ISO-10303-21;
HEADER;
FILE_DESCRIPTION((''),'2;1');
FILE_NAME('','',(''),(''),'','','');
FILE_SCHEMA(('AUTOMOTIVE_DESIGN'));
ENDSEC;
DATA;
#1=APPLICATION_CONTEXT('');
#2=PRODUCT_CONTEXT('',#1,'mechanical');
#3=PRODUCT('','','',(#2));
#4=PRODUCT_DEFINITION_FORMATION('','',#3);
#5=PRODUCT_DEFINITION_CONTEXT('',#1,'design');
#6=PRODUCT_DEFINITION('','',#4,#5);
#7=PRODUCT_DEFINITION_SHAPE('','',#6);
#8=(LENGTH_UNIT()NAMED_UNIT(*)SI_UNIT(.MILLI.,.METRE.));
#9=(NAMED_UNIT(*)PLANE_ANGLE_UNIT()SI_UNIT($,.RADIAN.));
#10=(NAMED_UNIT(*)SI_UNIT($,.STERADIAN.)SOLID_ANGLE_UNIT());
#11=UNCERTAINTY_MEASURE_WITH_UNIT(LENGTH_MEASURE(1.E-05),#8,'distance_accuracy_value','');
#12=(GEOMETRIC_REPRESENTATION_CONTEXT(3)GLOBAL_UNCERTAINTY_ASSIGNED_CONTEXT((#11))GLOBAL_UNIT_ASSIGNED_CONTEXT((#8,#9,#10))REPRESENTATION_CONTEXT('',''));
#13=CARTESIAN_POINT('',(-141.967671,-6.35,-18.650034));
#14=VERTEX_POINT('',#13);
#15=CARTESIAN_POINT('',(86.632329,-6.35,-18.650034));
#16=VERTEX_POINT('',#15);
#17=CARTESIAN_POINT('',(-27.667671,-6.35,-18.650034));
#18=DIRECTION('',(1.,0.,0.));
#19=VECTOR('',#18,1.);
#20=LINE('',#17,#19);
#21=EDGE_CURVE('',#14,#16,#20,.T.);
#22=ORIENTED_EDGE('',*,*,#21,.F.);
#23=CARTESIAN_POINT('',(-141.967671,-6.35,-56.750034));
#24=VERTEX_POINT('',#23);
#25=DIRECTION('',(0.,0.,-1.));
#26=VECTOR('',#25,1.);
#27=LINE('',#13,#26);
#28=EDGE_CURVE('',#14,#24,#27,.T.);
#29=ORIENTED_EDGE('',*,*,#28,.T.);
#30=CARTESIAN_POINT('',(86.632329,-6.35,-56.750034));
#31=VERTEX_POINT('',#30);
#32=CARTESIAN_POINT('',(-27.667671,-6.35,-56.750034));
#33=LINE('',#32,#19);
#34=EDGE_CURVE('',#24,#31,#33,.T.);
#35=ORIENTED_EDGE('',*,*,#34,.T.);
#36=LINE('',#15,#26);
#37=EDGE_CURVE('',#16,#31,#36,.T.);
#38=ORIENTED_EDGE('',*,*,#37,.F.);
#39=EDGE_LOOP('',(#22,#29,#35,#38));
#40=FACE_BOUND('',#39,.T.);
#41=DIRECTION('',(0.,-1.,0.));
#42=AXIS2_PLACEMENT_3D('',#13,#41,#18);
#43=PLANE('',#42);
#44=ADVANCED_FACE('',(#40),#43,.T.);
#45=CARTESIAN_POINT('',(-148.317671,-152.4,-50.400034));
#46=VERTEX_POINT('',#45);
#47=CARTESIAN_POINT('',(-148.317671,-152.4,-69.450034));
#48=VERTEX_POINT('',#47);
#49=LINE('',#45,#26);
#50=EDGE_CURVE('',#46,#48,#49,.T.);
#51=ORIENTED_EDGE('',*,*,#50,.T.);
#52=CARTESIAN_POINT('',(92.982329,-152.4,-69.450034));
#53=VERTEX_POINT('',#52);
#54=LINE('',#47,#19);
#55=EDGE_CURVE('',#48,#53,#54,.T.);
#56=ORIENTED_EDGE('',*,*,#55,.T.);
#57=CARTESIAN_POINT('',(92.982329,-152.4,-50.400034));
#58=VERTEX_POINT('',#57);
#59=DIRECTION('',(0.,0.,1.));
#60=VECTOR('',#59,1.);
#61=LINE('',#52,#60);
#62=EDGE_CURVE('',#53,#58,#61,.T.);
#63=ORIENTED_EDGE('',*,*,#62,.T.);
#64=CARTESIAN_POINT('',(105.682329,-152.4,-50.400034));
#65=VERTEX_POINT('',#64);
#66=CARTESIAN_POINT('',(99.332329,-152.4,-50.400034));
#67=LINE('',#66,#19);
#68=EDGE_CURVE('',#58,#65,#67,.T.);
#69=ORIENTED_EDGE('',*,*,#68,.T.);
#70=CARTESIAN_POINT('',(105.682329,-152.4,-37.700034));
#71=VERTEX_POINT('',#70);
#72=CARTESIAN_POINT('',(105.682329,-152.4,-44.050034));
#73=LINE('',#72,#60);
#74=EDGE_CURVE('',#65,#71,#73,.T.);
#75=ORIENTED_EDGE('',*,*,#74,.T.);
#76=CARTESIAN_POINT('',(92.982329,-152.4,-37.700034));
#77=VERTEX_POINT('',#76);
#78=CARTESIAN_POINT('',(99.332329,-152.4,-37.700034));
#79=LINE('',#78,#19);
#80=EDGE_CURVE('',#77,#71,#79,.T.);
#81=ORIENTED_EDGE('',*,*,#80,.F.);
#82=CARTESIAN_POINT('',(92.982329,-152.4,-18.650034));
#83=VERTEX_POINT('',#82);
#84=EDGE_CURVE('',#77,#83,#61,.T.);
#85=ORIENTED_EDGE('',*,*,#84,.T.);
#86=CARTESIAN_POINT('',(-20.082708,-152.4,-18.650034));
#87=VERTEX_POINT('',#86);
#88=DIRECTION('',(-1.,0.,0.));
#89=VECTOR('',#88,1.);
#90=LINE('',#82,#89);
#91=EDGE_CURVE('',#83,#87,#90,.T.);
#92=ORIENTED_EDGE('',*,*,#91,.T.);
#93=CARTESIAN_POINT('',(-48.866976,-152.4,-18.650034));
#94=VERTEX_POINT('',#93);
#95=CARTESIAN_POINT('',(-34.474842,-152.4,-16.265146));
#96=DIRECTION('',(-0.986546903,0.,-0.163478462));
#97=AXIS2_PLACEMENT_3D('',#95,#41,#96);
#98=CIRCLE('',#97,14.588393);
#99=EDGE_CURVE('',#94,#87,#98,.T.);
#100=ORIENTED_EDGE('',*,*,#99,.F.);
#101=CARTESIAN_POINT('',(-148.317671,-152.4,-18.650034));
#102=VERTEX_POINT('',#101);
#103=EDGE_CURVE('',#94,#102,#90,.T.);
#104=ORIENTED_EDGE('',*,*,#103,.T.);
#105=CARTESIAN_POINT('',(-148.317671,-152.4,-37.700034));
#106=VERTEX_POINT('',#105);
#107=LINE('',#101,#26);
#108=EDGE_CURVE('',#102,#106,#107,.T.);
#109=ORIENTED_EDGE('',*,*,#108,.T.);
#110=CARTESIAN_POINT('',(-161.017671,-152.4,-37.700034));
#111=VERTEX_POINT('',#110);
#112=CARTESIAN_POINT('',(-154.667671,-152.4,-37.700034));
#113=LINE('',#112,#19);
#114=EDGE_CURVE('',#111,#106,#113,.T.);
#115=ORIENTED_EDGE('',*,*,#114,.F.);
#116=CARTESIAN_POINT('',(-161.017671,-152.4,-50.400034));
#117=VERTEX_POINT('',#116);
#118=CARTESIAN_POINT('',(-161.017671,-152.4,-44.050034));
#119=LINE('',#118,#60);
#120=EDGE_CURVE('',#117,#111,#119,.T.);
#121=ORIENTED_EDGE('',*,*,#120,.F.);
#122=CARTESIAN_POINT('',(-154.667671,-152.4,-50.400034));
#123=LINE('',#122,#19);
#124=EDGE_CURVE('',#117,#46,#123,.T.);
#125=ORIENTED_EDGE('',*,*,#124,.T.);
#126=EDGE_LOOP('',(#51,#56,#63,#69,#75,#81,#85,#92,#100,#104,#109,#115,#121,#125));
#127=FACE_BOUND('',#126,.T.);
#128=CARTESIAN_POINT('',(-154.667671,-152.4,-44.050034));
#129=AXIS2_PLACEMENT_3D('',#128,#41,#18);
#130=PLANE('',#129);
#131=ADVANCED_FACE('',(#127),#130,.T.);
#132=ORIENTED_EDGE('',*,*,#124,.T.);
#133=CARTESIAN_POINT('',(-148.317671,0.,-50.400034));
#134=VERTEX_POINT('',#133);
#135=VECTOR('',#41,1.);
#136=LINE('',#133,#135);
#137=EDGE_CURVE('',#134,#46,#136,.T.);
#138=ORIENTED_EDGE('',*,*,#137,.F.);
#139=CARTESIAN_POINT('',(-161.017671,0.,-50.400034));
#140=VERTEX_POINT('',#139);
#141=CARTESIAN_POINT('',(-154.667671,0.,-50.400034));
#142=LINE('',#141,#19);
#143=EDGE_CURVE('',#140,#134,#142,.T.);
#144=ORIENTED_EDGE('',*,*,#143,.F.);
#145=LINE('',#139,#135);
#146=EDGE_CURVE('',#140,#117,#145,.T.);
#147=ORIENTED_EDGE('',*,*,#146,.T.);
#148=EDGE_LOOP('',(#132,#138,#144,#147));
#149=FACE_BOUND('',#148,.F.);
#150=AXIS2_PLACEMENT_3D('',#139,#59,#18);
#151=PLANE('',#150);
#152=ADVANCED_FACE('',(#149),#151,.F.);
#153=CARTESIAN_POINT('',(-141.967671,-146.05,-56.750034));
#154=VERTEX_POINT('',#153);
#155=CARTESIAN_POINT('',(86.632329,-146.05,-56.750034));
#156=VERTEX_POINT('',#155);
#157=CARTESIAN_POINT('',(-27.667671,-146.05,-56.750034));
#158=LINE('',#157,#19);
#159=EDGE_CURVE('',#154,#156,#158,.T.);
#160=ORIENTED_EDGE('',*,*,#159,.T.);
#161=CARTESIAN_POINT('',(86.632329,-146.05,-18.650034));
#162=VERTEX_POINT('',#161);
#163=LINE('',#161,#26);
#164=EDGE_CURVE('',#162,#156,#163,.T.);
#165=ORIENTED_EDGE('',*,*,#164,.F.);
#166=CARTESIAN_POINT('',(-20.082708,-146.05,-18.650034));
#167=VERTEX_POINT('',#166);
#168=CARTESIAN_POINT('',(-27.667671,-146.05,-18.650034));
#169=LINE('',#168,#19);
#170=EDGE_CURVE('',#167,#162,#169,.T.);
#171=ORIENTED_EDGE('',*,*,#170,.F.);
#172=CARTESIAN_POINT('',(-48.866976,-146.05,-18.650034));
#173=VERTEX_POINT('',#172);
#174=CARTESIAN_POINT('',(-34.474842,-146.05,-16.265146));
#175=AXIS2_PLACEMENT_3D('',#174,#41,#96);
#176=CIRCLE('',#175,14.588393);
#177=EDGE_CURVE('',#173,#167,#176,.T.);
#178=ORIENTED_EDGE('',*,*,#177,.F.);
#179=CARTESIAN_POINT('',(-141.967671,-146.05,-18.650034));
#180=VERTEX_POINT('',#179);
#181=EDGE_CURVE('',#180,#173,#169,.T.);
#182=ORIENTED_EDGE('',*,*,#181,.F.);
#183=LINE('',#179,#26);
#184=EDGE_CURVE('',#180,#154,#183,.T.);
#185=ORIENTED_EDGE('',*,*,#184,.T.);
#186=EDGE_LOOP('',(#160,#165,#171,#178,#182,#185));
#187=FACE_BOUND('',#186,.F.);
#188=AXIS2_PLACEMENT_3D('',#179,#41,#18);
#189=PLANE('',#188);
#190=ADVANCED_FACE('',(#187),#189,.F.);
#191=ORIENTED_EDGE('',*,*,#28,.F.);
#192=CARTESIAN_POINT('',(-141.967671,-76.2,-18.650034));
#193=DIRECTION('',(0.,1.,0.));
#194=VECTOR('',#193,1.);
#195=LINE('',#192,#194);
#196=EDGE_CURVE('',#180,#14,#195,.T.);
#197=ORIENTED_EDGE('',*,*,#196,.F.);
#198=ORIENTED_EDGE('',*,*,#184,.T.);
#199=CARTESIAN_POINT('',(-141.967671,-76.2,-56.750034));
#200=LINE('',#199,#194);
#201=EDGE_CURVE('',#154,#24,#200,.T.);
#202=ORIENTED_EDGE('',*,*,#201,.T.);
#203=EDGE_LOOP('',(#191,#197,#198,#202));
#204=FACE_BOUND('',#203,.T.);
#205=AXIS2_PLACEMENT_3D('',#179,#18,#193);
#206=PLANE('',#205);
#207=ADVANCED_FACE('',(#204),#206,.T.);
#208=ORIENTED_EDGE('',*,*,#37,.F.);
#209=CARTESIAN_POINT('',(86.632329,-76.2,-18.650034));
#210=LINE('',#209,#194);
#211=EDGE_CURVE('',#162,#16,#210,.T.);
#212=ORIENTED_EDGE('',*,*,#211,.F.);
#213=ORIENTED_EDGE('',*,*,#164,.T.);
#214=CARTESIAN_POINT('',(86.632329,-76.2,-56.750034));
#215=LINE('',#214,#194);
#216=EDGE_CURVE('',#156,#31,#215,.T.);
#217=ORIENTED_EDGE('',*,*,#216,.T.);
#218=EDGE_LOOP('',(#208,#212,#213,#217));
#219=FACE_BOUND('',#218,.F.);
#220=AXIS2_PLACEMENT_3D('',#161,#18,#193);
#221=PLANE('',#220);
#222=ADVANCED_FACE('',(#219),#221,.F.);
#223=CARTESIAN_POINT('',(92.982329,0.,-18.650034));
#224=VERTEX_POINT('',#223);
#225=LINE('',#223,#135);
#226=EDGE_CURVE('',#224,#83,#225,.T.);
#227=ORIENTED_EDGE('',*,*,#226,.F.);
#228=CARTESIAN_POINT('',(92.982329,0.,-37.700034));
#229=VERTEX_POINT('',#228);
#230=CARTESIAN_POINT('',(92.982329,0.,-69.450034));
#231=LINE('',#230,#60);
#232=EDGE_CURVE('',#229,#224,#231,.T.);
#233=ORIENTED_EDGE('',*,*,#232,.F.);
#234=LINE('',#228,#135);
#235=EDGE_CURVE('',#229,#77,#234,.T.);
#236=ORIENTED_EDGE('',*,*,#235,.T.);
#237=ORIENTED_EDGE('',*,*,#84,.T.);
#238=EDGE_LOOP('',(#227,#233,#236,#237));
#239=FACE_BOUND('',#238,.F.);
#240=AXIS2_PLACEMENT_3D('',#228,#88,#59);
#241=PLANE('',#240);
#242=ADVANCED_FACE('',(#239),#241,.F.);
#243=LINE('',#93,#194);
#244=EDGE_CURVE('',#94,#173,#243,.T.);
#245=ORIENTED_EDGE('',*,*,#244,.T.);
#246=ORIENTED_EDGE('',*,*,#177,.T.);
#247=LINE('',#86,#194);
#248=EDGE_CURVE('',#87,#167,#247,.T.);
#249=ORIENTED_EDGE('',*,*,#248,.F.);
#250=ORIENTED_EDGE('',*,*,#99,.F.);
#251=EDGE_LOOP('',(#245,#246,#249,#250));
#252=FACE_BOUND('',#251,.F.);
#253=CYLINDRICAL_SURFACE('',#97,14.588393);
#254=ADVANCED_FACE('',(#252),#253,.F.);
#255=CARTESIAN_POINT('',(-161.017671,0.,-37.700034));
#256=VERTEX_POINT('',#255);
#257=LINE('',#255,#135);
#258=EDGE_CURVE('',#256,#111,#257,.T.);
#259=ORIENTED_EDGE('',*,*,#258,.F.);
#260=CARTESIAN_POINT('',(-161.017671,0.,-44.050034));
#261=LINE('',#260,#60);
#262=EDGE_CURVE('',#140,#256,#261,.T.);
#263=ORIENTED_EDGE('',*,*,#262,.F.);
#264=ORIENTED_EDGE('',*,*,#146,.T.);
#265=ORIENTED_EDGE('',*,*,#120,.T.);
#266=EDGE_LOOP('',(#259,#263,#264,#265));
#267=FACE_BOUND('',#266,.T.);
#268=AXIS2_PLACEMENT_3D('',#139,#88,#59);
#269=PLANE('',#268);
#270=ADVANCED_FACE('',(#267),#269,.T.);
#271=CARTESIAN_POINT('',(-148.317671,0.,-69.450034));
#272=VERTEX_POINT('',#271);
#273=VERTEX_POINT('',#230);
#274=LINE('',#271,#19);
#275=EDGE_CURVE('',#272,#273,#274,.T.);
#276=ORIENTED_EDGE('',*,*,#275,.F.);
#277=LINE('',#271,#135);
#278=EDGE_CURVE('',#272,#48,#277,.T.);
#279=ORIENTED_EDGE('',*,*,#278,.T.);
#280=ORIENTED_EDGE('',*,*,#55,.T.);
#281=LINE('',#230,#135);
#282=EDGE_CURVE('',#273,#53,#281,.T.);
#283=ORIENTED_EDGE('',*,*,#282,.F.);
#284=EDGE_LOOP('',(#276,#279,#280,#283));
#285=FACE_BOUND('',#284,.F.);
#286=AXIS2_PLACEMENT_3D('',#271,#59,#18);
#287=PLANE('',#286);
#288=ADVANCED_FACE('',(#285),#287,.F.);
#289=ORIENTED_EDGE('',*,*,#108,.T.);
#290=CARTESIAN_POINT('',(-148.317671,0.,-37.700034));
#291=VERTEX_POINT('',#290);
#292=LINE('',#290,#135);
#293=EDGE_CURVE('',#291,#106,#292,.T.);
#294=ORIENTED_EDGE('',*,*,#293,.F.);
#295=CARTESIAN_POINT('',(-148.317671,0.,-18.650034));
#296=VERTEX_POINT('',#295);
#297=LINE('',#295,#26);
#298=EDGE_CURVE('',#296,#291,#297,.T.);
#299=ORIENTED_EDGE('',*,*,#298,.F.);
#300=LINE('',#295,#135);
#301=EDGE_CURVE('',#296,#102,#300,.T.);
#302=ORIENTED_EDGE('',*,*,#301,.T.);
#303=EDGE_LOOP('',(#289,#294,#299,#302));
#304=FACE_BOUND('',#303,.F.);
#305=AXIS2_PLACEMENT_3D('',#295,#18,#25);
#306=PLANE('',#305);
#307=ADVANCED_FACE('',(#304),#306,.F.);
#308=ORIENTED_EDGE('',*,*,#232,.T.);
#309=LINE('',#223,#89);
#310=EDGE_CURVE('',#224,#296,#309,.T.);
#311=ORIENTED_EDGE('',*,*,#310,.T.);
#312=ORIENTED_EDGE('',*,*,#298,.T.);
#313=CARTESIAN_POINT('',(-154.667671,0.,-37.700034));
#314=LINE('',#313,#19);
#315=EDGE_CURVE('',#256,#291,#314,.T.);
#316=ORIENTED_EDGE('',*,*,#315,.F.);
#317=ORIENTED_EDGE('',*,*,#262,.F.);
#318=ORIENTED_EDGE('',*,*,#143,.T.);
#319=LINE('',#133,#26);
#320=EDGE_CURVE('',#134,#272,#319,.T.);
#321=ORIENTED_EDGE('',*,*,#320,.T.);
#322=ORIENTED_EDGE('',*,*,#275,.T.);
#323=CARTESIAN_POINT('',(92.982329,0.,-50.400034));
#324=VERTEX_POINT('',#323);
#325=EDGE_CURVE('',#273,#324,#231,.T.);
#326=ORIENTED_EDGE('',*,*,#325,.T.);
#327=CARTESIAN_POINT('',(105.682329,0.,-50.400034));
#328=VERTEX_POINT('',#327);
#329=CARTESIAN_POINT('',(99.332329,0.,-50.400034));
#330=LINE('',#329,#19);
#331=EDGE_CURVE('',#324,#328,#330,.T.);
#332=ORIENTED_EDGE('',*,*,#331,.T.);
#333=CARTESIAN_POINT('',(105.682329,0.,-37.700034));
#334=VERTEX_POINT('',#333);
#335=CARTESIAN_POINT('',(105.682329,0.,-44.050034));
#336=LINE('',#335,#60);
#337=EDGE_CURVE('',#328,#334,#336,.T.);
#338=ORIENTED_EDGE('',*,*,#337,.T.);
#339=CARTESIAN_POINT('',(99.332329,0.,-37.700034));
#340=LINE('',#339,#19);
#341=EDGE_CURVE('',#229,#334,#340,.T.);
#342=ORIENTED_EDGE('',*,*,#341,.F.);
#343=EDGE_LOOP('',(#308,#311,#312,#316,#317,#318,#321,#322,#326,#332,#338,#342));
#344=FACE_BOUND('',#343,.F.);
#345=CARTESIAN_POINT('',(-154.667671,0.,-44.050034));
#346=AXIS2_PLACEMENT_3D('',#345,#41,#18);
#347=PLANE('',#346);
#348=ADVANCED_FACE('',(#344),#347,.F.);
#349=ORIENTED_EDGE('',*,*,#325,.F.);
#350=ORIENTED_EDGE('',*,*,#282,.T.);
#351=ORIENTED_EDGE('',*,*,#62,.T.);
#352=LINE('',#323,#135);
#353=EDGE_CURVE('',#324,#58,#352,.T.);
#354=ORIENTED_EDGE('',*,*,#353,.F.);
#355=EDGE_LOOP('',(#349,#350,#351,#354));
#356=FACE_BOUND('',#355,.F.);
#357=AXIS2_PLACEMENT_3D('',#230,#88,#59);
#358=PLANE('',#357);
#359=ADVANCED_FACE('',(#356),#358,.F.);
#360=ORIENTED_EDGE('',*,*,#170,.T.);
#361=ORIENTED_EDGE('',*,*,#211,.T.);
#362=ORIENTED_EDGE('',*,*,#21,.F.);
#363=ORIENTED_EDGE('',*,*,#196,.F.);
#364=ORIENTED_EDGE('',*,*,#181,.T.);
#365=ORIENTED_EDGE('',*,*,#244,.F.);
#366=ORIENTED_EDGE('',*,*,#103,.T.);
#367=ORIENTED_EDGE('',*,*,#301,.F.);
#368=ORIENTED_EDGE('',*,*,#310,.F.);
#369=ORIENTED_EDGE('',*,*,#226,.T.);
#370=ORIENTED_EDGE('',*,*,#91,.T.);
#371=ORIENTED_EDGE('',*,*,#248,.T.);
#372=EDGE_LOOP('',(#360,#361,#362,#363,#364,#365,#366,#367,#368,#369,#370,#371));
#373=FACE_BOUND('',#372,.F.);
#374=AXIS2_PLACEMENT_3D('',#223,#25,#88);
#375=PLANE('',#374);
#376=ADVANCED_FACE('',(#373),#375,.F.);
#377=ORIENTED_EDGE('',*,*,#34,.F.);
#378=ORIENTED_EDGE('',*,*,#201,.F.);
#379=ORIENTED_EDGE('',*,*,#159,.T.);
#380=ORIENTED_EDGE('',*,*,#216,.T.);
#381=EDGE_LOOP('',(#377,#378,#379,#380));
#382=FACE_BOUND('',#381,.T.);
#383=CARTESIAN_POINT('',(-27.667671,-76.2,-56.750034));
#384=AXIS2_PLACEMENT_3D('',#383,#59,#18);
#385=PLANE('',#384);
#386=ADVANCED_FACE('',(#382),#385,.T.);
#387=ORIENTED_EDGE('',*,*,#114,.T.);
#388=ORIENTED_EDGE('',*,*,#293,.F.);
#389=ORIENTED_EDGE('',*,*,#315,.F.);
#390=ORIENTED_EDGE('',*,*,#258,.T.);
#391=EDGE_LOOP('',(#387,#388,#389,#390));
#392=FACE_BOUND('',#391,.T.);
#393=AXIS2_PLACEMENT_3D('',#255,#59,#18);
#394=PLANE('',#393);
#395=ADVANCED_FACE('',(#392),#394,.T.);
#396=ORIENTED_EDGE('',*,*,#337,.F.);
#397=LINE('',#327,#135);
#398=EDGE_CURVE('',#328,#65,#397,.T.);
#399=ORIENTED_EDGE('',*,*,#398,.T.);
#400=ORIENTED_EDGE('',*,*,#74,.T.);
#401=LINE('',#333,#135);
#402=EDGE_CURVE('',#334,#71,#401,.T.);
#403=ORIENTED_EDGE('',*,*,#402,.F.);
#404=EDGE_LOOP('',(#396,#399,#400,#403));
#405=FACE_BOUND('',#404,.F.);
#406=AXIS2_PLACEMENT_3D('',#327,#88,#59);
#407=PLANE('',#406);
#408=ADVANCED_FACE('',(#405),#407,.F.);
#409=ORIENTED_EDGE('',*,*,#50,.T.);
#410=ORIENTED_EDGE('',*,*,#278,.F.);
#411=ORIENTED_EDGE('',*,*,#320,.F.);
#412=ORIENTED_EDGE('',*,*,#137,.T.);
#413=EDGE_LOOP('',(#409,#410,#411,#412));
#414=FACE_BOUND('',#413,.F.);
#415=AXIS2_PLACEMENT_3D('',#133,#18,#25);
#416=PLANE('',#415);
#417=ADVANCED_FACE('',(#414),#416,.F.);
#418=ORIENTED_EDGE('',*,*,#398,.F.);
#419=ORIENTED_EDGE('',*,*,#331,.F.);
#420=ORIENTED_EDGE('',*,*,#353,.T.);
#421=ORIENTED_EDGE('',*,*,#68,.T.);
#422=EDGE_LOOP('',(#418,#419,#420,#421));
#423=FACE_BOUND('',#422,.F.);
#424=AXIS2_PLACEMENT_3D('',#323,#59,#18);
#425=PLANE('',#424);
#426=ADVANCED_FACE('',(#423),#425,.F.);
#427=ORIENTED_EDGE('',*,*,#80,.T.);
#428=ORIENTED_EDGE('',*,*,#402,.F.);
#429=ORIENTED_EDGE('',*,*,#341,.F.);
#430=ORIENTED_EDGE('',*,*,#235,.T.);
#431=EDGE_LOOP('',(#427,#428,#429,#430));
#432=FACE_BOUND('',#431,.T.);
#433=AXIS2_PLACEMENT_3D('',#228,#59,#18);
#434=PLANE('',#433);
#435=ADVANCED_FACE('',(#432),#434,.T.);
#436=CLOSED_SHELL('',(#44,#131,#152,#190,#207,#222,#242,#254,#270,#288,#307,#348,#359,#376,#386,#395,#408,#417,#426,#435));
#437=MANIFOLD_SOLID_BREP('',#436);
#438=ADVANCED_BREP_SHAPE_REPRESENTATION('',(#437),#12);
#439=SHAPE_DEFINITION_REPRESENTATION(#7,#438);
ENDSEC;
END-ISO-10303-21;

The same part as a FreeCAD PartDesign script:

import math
import FreeCAD as App
import Part
import Sketcher
from FreeCAD import Vector
Q = App.Units.Quantity


def add_polygon(sketch, points):
    """Adds a closed chain of lines whose ends are joined by coincident constraints."""
    first, n = sketch.GeometryCount, len(points)
    for a, b in zip(points, points[1:] + points[:1]):
        sketch.addGeometry(Part.LineSegment(App.Vector(*a, 0), App.Vector(*b, 0)), False)
    for i in range(n):
        sketch.addConstraint(Sketcher.Constraint("Coincident", first + i, 2, first + (i + 1) % n, 1))

doc = App.newDocument("Part")
body = doc.addObject("PartDesign::Body", "Body")

# Sketch on XZ plane
sketch1 = body.newObject("Sketcher::SketchObject", "Sketch")
sketch1.AttachmentSupport = (doc.getObject("XZ_Plane"), [""])
sketch1.MapMode = "FlatFace"
add_polygon(sketch1, [(-161.017671, -37.700034), (-161.017671, -50.400034), (-148.317671, -50.400034), (-148.317671, -69.450034), (92.982329, -69.450034), (92.982329, -50.400034), (105.682329, -50.400034), (105.682329, -37.700034), (92.982329, -37.700034), (92.982329, -18.650034), (-148.317671, -18.650034), (-148.317671, -37.700034)])  # lines 0-11
sketch1.addConstraint([
    Sketcher.Constraint("Vertical", 0),
    Sketcher.Constraint("Horizontal", 1),
    Sketcher.Constraint("Vertical", 2),
    Sketcher.Constraint("Horizontal", 3),
    Sketcher.Constraint("Vertical", 4),
    Sketcher.Constraint("Horizontal", 5),
    Sketcher.Constraint("Vertical", 6),
    Sketcher.Constraint("Horizontal", 7),
    Sketcher.Constraint("Vertical", 8),
    Sketcher.Constraint("Horizontal", 9),
    Sketcher.Constraint("Vertical", 10),
    Sketcher.Constraint("Horizontal", 11),
    Sketcher.Constraint("Horizontal", 1, 2, 4, 2),
    Sketcher.Constraint("Horizontal", 7, 2, 10, 2),
    Sketcher.Constraint("Vertical", 4, 2, 7, 2),
    Sketcher.Constraint("Vertical", 2, 2, 9, 2),
    Sketcher.Constraint("Equal", 1, 5),
    Sketcher.Constraint("Equal", 11, 0),
    Sketcher.Constraint("Equal", 4, 8),
    Sketcher.Constraint("DistanceX", 1, 1, 1, 2, Q("0.5 in")),
    Sketcher.Constraint("DistanceX", 3, 1, 3, 2, Q("9.5 in")),
    Sketcher.Constraint("DistanceY", 3, 2, 8, 2, Q("2 in")),
    Sketcher.Constraint("DistanceX", 0, 2, -1, 1, Q("161.017671 mm")),
    Sketcher.Constraint("DistanceY", 0, 2, -1, 1, Q("50.400034 mm")),
])
pad1 = body.newObject("PartDesign::Pad", "Pad")
pad1.Profile = sketch1
pad1.Length = Q("6 in")

# Sketch on XY plane
sketch2 = body.newObject("Sketcher::SketchObject", "Sketch001")
sketch2.AttachmentSupport = (doc.getObject("XY_Plane"), [""])
sketch2.MapMode = "FlatFace"
sketch2.AttachmentOffset = App.Placement(Vector(0, 0, -18.650034), App.Rotation())
add_polygon(sketch2, [(-141.967671, -6.35), (-141.967671, -146.05), (86.632329, -146.05), (86.632329, -6.35)])  # lines 0-3
sketch2.addConstraint([
    Sketcher.Constraint("Vertical", 0),
    Sketcher.Constraint("Horizontal", 1),
    Sketcher.Constraint("Vertical", 2),
    Sketcher.Constraint("Horizontal", 3),
    Sketcher.Constraint("DistanceX", 1, 1, 1, 2, Q("9 in")),
    Sketcher.Constraint("DistanceY", 0, 2, 0, 1, Q("5.5 in")),
    Sketcher.Constraint("DistanceY", 0, 2, -1, 1, Q("5.75 in")),
    Sketcher.Constraint("DistanceX", 0, 2, -1, 1, Q("141.967671 mm")),
])
pocket1 = body.newObject("PartDesign::Pocket", "Pocket")
pocket1.Profile = sketch2
pocket1.Length = Q("1.5 in")

# Sketch on XZ plane
sketch3 = body.newObject("Sketcher::SketchObject", "Sketch002")
sketch3.AttachmentSupport = (doc.getObject("XZ_Plane"), [""])
sketch3.MapMode = "FlatFace"
sketch3.AttachmentOffset = App.Placement(Vector(0, 0, 6 * 25.4), App.Rotation())
sketch3.addGeometry([
    Part.LineSegment(Vector(-20.082708, -18.650034, 0), Vector(-48.866976, -18.650034, 0)),
    Part.ArcOfCircle(Part.Circle(Vector(-34.474842, -16.265146, 0), Vector(0, 0, 1), 14.588393), math.radians(-170.591143), math.radians(-9.408857)),
], False)
sketch3.addConstraint([
    Sketcher.Constraint("Coincident", 0, 1, 1, 2),
    Sketcher.Constraint("Coincident", 1, 1, 0, 2),
    Sketcher.Constraint("Horizontal", 0),
    Sketcher.Constraint("Radius", 1, Q("14.588393 mm")),
    Sketcher.Constraint("DistanceX", 0, 2, 0, 1, Q("28.784268 mm")),
    Sketcher.Constraint("DistanceX", 0, 1, -1, 1, Q("20.082708 mm")),
    Sketcher.Constraint("DistanceY", 1, 3, -1, 1, Q("16.265146 mm")),
])
pocket2 = body.newObject("PartDesign::Pocket", "Pocket001")
pocket2.Profile = sketch3
pocket2.Length = Q("0.25 in")

doc.recompute()
